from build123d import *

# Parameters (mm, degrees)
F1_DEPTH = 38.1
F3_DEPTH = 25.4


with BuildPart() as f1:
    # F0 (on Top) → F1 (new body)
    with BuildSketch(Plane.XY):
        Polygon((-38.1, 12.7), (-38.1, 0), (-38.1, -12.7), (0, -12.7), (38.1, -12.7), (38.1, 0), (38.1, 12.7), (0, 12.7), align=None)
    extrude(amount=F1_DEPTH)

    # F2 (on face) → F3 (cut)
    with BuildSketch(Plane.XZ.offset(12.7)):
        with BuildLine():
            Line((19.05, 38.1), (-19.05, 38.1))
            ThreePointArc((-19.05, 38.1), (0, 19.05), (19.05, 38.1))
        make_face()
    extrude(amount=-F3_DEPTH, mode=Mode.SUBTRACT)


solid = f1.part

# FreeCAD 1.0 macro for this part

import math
import FreeCAD as App
import Part
import Sketcher

V = App.Vector
Q = App.Units.Quantity


def add_polygon(sketch, points):
    """Adds a closed chain of lines whose ends are joined by coincident constraints."""
    first, n = sketch.GeometryCount, len(points)
    for a, b in zip(points, points[1:] + points[:1]):
        sketch.addGeometry(Part.LineSegment(App.Vector(*a, 0), App.Vector(*b, 0)), False)
    for i in range(n):
        sketch.addConstraint(Sketcher.Constraint("Coincident", first + i, 2, first + (i + 1) % n, 1))

doc = App.newDocument("Part")
params = doc.addObject("Spreadsheet::Sheet", "Params")
for row, (alias, value) in enumerate([
    ("sketch1_width", "3 in"),
    ("sketch1_height", "1 in"),
    ("pad1_length", "1.5 in"),
    ("sketch2_radius", "0.75 in"),
    ("pocket1_length", "1 in"),
], start=1):
    params.set(f"A{row}", alias)
    params.set(f"B{row}", "=" + value)
    params.setAlias(f"B{row}", alias)

body = doc.addObject("PartDesign::Body", "Body")

# Sketch on XY plane
sketch1 = doc.addObject("Sketcher::SketchObject", "Sketch")
body.addObject(sketch1)
sketch1.AttachmentSupport = (doc.XY_Plane, [""])
sketch1.MapMode = "FlatFace"
add_polygon(sketch1, [(-38, 13), (-38, -13), (38, -13), (38, 13)])  # lines 0-3
sketch1.addConstraint(Sketcher.Constraint("Vertical", 0))
sketch1.addConstraint(Sketcher.Constraint("Horizontal", 1))
sketch1.addConstraint(Sketcher.Constraint("Vertical", 2))
sketch1.addConstraint(Sketcher.Constraint("Horizontal", 3))
sketch1.addConstraint(Sketcher.Constraint("Symmetric", 0, 2, 2, 2, -1, 1))
sketch1.addConstraint(Sketcher.Constraint("DistanceX", 1, 1, 1, 2, Q("3 in")))
sketch1.addConstraint(Sketcher.Constraint("DistanceY", 0, 2, 0, 1, Q("1 in")))
sketch1.setExpression("Constraints[9]", "Params.sketch1_width")
sketch1.setExpression("Constraints[10]", "Params.sketch1_height")
pad1 = doc.addObject("PartDesign::Pad", "Pad")
body.addObject(pad1)
pad1.Profile = sketch1
pad1.setExpression("Length", "Params.pad1_length")

# Sketch on XZ plane
sketch2 = doc.addObject("Sketcher::SketchObject", "Sketch001")
body.addObject(sketch2)
sketch2.AttachmentSupport = (doc.XZ_Plane, [""])
sketch2.MapMode = "FlatFace"
sketch2.AttachmentOffset = App.Placement(V(0, 0, 0.5 * 25.4), App.Rotation())
sketch2.addGeometry(Part.LineSegment(V(19, 38, 0), V(-19, 38, 0)), False)
sketch2.addGeometry(Part.ArcOfCircle(Part.Circle(V(0, 38, 0), V(0, 0, 1), 19), math.radians(180), math.radians(360)), False)
sketch2.addConstraint(Sketcher.Constraint("Coincident", 0, 1, 1, 2))
sketch2.addConstraint(Sketcher.Constraint("Coincident", 1, 1, 0, 2))
sketch2.addConstraint(Sketcher.Constraint("Horizontal", 0))
sketch2.addConstraint(Sketcher.Constraint("PointOnObject", 1, 3, -2))
sketch2.addConstraint(Sketcher.Constraint("Horizontal", 1, 3, 0, 1))
sketch2.addConstraint(Sketcher.Constraint("Radius", 1, Q("0.75 in")))
sketch2.addConstraint(Sketcher.Constraint("DistanceY", -1, 1, 1, 3, Q("1.5 in")))
sketch2.setExpression("Constraints[5]", "Params.sketch2_radius")
pocket1 = doc.addObject("PartDesign::Pocket", "Pocket")
body.addObject(pocket1)
pocket1.Profile = sketch2
pocket1.setExpression("Length", "Params.pocket1_length")

doc.recompute()
